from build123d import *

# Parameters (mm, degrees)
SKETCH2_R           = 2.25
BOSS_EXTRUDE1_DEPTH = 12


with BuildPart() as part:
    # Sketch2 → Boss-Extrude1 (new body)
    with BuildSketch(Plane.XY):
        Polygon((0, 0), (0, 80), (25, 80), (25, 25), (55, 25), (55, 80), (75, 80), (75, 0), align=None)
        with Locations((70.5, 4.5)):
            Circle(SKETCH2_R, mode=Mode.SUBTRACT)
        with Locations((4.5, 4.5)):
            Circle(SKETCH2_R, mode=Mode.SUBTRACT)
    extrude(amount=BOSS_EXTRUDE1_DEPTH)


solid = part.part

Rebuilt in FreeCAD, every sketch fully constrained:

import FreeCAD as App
import Part
import Sketcher
from FreeCAD import Vector
Q = App.Units.Quantity

doc = App.newDocument("Part")
body = doc.addObject("PartDesign::Body", "Body")

# Sketch on XY plane
sketch1 = body.newObject("Sketcher::SketchObject", "Sketch")
sketch1.AttachmentSupport = (doc.getObject("XY_Plane"), [""])
sketch1.MapMode = "FlatFace"
sketch1.addGeometry([
    Part.LineSegment(Vector(0, 80, 0), Vector(0, 0, 0)),  # 0
    Part.LineSegment(Vector(0, 0, 0), Vector(75, 0, 0)),  # 1
    Part.LineSegment(Vector(75, 0, 0), Vector(75, 80, 0)),  # 2
    Part.LineSegment(Vector(75, 80, 0), Vector(55, 80, 0)),  # 3
    Part.LineSegment(Vector(55, 80, 0), Vector(55, 25, 0)),  # 4
    Part.LineSegment(Vector(55, 25, 0), Vector(25, 25, 0)),  # 5
    Part.LineSegment(Vector(25, 25, 0), Vector(25, 80, 0)),  # 6
    Part.LineSegment(Vector(25, 80, 0), Vector(0, 80, 0)),  # 7
    Part.Circle(Vector(70.5, 4.5, 0), Vector(0, 0, 1), 2.2),  # 8
    Part.Circle(Vector(4.5, 4.5, 0), Vector(0, 0, 1), 2.2),  # 9
], False)
sketch1.addConstraint([
    Sketcher.Constraint("Coincident", 0, 2, 1, 1),
    Sketcher.Constraint("Coincident", 1, 2, 2, 1),
    Sketcher.Constraint("Coincident", 2, 2, 3, 1),
    Sketcher.Constraint("Coincident", 3, 2, 4, 1),
    Sketcher.Constraint("Coincident", 4, 2, 5, 1),
    Sketcher.Constraint("Coincident", 5, 2, 6, 1),
    Sketcher.Constraint("Coincident", 6, 2, 7, 1),
    Sketcher.Constraint("Coincident", 7, 2, 0, 1),
    Sketcher.Constraint("Vertical", 0),
    Sketcher.Constraint("Horizontal", 1),
    Sketcher.Constraint("Vertical", 2),
    Sketcher.Constraint("Horizontal", 3),
    Sketcher.Constraint("Vertical", 4),
    Sketcher.Constraint("Horizontal", 5),
    Sketcher.Constraint("Vertical", 6),
    Sketcher.Constraint("Horizontal", 7),
    Sketcher.Constraint("Coincident", 0, 2, -1, 1),
    Sketcher.Constraint("Equal", 8, 9),
    Sketcher.Constraint("Horizontal", 8, 3, 9, 3),
    Sketcher.Constraint("Horizontal", 3, 2, 6, 2),
    Sketcher.Constraint("Diameter", 8, Q("4.5 mm")),
    Sketcher.Constraint("DistanceX", 1, 1, 1, 2, Q("75 mm")),
    Sketcher.Constraint("DistanceX", 3, 2, 3, 1, Q("20 mm")),
    Sketcher.Constraint("DistanceX", 5, 2, 5, 1, Q("30 mm")),
    Sketcher.Constraint("DistanceY", 0, 2, 0, 1, Q("80 mm")),
    Sketcher.Constraint("DistanceY", 4, 2, 4, 1, Q("55 mm")),
    Sketcher.Constraint("DistanceX", 9, 3, 8, 3, Q("66 mm")),
    Sketcher.Constraint("DistanceX", -1, 1, 8, 3, Q("70.5 mm")),
    Sketcher.Constraint("DistanceY", -1, 1, 8, 3, Q("4.5 mm")),
])
pad1 = body.newObject("PartDesign::Pad", "Pad")
pad1.Profile = sketch1
pad1.Length = 12

doc.recompute()
